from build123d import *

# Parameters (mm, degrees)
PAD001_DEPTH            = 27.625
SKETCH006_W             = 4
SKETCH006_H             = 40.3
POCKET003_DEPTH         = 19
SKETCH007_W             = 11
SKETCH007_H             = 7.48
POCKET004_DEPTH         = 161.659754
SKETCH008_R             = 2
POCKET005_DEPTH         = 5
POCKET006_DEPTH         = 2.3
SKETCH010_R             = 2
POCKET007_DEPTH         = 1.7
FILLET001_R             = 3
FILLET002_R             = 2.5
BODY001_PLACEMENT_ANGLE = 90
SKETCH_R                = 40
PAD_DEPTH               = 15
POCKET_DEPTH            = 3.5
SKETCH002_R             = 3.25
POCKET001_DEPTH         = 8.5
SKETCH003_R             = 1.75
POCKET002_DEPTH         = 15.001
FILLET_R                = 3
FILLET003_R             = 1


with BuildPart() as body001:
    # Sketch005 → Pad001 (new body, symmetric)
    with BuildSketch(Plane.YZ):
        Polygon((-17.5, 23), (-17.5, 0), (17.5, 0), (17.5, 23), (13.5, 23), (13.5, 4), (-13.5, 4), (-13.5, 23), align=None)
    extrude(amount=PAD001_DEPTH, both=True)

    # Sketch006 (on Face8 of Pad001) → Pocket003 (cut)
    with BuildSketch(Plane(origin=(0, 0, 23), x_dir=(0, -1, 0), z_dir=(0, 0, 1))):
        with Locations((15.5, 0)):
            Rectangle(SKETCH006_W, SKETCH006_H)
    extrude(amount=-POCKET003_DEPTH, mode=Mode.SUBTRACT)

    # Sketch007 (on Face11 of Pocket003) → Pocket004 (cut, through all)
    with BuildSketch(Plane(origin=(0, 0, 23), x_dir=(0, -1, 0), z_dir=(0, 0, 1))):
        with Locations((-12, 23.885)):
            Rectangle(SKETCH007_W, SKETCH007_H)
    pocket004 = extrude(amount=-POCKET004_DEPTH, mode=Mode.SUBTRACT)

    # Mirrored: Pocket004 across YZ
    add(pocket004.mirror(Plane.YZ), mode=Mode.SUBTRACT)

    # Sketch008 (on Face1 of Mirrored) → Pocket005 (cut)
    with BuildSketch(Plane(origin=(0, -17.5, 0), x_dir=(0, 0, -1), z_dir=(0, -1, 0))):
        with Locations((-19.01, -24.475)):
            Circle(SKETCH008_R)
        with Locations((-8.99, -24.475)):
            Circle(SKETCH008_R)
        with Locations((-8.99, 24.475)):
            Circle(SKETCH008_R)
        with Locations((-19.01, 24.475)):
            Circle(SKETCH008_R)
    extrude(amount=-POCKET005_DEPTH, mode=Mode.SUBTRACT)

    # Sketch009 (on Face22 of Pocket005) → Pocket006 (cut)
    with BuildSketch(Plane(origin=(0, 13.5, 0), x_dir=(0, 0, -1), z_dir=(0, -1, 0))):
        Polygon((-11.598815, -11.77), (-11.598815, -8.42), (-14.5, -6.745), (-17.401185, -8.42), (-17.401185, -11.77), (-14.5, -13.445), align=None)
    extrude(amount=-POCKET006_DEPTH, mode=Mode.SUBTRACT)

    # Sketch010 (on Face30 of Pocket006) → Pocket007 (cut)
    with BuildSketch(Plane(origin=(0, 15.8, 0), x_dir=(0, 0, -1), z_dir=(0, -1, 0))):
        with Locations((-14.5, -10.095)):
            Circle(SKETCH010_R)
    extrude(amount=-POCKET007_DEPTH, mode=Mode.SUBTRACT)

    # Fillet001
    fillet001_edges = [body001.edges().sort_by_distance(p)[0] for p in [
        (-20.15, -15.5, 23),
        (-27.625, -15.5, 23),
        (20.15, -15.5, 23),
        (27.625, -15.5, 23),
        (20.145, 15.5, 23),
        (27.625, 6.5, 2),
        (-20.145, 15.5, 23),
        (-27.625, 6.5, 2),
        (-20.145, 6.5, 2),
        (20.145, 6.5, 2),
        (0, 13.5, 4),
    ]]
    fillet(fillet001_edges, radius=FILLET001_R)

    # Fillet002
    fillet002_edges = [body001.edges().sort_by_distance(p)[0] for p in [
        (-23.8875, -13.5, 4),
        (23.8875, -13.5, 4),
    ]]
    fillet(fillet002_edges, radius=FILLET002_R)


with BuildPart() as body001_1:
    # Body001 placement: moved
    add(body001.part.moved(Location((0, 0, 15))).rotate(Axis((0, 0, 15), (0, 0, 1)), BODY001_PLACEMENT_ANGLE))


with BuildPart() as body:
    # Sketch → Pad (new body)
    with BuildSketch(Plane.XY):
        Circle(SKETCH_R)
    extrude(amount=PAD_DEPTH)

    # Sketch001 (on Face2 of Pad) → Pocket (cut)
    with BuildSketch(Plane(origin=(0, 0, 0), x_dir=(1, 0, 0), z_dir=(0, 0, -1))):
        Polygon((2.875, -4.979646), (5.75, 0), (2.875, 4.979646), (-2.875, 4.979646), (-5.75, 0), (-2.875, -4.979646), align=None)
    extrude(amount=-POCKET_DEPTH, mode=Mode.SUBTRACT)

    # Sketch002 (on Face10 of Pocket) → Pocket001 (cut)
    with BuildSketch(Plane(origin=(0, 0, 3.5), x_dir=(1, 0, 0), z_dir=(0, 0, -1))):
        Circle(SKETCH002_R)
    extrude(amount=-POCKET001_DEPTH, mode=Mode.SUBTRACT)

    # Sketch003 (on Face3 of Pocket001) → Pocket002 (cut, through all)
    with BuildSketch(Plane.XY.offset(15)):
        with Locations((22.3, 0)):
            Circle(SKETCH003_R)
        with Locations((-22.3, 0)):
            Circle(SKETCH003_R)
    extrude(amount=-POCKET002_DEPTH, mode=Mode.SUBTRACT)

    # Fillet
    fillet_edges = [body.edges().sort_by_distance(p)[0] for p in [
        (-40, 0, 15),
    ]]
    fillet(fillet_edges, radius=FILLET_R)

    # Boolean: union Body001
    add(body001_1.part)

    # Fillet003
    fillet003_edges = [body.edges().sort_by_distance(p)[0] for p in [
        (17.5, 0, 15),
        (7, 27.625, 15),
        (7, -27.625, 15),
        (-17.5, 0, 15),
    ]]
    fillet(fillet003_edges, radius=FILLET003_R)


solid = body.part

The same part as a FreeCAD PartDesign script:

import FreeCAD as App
import Part
import Sketcher
from FreeCAD import Vector
Q = App.Units.Quantity


def edges_at(feature, points):
    """Names of the edges that pass closest to the given points."""
    edges = feature.Shape.Edges
    near = lambda p: min(range(len(edges)), key=lambda i: edges[i].distToShape(Part.Vertex(*p))[0])
    return sorted({f"Edge{near(p) + 1}" for p in points})


def add_polygon(sketch, points):
    """Adds a closed chain of lines whose ends are joined by coincident constraints."""
    first, n = sketch.GeometryCount, len(points)
    for a, b in zip(points, points[1:] + points[:1]):
        sketch.addGeometry(Part.LineSegment(App.Vector(*a, 0), App.Vector(*b, 0)), False)
    for i in range(n):
        sketch.addConstraint(Sketcher.Constraint("Coincident", first + i, 2, first + (i + 1) % n, 1))

doc = App.newDocument("Part")
body = doc.addObject("PartDesign::Body", "Body")

# Sketch on YZ plane
sketch1 = body.newObject("Sketcher::SketchObject", "Sketch")
sketch1.AttachmentSupport = (doc.getObject("YZ_Plane"), [""])
sketch1.MapMode = "FlatFace"
add_polygon(sketch1, [(-17.5, 23), (-17.5, 0), (17.5, 0), (17.5, 23), (13.5, 23), (13.5, 4), (-13.5, 4), (-13.5, 23)])  # lines 0-7
sketch1.addConstraint([
    Sketcher.Constraint("Vertical", 0),
    Sketcher.Constraint("Horizontal", 1),
    Sketcher.Constraint("Vertical", 2),
    Sketcher.Constraint("Horizontal", 3),
    Sketcher.Constraint("Vertical", 4),
    Sketcher.Constraint("Horizontal", 5),
    Sketcher.Constraint("Vertical", 6),
    Sketcher.Constraint("Horizontal", 7),
    Sketcher.Constraint("Symmetric", 0, 2, 1, 2, -1, 1),
    Sketcher.Constraint("Symmetric", 3, 2, 6, 2, -2),
    Sketcher.Constraint("DistanceX", 1, 1, 1, 2, 35.0),
    Sketcher.Constraint("DistanceX", 3, 2, 3, 1, 4.0),
    Sketcher.Constraint("DistanceY", 0, 2, 0, 1, 23.0),
    Sketcher.Constraint("DistanceY", 4, 2, 4, 1, 19.0),
])
pad1 = body.newObject("PartDesign::Pad", "Pad")
pad1.Profile = sketch1
pad1.Length = 55.25
pad1.Midplane = True

# Sketch on XY plane
sketch2 = body.newObject("Sketcher::SketchObject", "Sketch001")
sketch2.AttachmentSupport = (doc.getObject("XY_Plane"), [""])
sketch2.MapMode = "FlatFace"
sketch2.AttachmentOffset = App.Placement(Vector(0, 0, 23), App.Rotation())
add_polygon(sketch2, [(20.1, -13.5), (-20.1, -13.5), (-20.1, -17.5), (20.1, -17.5)])  # lines 0-3
sketch2.addConstraint([
    Sketcher.Constraint("Horizontal", 0),
    Sketcher.Constraint("Vertical", 1),
    Sketcher.Constraint("Horizontal", 2),
    Sketcher.Constraint("Vertical", 3),
    Sketcher.Constraint("DistanceY", 1, 2, 1, 1, 4.0),
    Sketcher.Constraint("DistanceX", 0, 2, 0, 1, 40.3),
    Sketcher.Constraint("DistanceY", 0, 2, -1, 1, 13.5),
    Sketcher.Constraint("DistanceX", 0, 2, -1, 1, 20.15),
])
pocket1 = body.newObject("PartDesign::Pocket", "Pocket")
pocket1.Profile = sketch2
pocket1.Length = 19

# Sketch on XY plane
sketch3 = body.newObject("Sketcher::SketchObject", "Sketch002")
sketch3.AttachmentSupport = (doc.getObject("XY_Plane"), [""])
sketch3.MapMode = "FlatFace"
sketch3.AttachmentOffset = App.Placement(Vector(0, 0, 23), App.Rotation())
add_polygon(sketch3, [(28, 18), (20, 18), (20, 6), (28, 6)])  # lines 0-3
sketch3.addConstraint([
    Sketcher.Constraint("Horizontal", 0),
    Sketcher.Constraint("Vertical", 1),
    Sketcher.Constraint("Horizontal", 2),
    Sketcher.Constraint("Vertical", 3),
    Sketcher.Constraint("DistanceY", 1, 2, 1, 1, 11.0),
    Sketcher.Constraint("DistanceX", 0, 2, 0, 1, 7.48),
    Sketcher.Constraint("DistanceY", -1, 1, 0, 2, 17.5),
    Sketcher.Constraint("DistanceX", -1, 1, 0, 2, 20.145),
])
pocket2 = body.newObject("PartDesign::Pocket", "Pocket001")
pocket2.Profile = sketch3
pocket2.Type = "ThroughAll"
doc.recompute()

mirrored = body.newObject("PartDesign::Mirrored", "Mirrored")
mirrored.Originals = [pocket2]
mirrored.MirrorPlane = (doc.getObject("YZ_Plane"), [""])
body.Tip = mirrored

# Sketch on XZ plane
sketch4 = body.newObject("Sketcher::SketchObject", "Sketch003")
sketch4.AttachmentSupport = (doc.getObject("XZ_Plane"), [""])
sketch4.MapMode = "FlatFace"
sketch4.AttachmentOffset = App.Placement(Vector(0, 0, 17.5), App.Rotation())
sketch4.addGeometry([
    Part.Circle(Vector(-24.5, 19, 0), Vector(0, 0, 1), 2),
    Part.Circle(Vector(-24.5, 9, 0), Vector(0, 0, 1), 2),
    Part.Circle(Vector(24.5, 9, 0), Vector(0, 0, 1), 2),
    Part.Circle(Vector(24.5, 19, 0), Vector(0, 0, 1), 2),
], False)
sketch4.addConstraint([
    Sketcher.Constraint("Equal", 0, 1),
    Sketcher.Constraint("Equal", 1, 2),
    Sketcher.Constraint("Equal", 2, 3),
    Sketcher.Constraint("Symmetric", 1, 3, 2, 3, -2),
    Sketcher.Constraint("Symmetric", 0, 3, 3, 3, -2),
    Sketcher.Constraint("Vertical", 0, 3, 1, 3),
    Sketcher.Constraint("Diameter", 0, 4.0),
    Sketcher.Constraint("DistanceY", -1, 1, 0, 3, 19.01),
    Sketcher.Constraint("DistanceY", -1, 1, 1, 3, 8.99),
    Sketcher.Constraint("DistanceX", 1, 3, 2, 3, 48.95),
])
pocket3 = body.newObject("PartDesign::Pocket", "Pocket002")
pocket3.Profile = sketch4
pocket3.Length = 5

# Sketch on XZ plane
sketch5 = body.newObject("Sketcher::SketchObject", "Sketch004")
sketch5.AttachmentSupport = (doc.getObject("XZ_Plane"), [""])
sketch5.MapMode = "FlatFace"
sketch5.AttachmentOffset = App.Placement(Vector(0, 0, -13.5), App.Rotation())
add_polygon(sketch5, [(-11.8, 11.6), (-8.4, 11.6), (-6.7, 14.5), (-8.4, 17.4), (-11.8, 17.4), (-13.4, 14.5)])  # lines 0-5
sketch5.addConstraint([
    Sketcher.Constraint("Horizontal", 0),
    Sketcher.Constraint("Horizontal", 3),
    Sketcher.Constraint("Parallel", 1, 4),
    Sketcher.Constraint("Parallel", 2, 5),
    Sketcher.Constraint("Horizontal", 1, 2, 4, 2),
    Sketcher.Constraint("Vertical", 0, 2, 2, 2),
    Sketcher.Constraint("Vertical", 3, 2, 5, 2),
    Sketcher.Constraint("Angle", 1, Q("59.999999 deg")),
    Sketcher.Constraint("DistanceX", 0, 1, 0, 2, 3.35),
    Sketcher.Constraint("DistanceY", -1, 1, 1, 2, 14.5),
    Sketcher.Constraint("DistanceX", 4, 2, 1, 2, 6.7),
    Sketcher.Constraint("DistanceX", 0, 2, -1, 1, 8.42),
])
pocket4 = body.newObject("PartDesign::Pocket", "Pocket003")
pocket4.Profile = sketch5
pocket4.Length = 2.3

# Sketch on XZ plane
sketch6 = body.newObject("Sketcher::SketchObject", "Sketch005")
sketch6.AttachmentSupport = (doc.getObject("XZ_Plane"), [""])
sketch6.MapMode = "FlatFace"
sketch6.AttachmentOffset = App.Placement(Vector(0, 0, -15.8), App.Rotation())
sketch6.addGeometry(Part.Circle(Vector(-10.1, 14.5, 0), Vector(0, 0, 1), 2), False)
sketch6.addConstraint([
    Sketcher.Constraint("Diameter", 0, 4.0),
    Sketcher.Constraint("DistanceY", -1, 1, 0, 3, 14.5),
    Sketcher.Constraint("DistanceX", 0, 3, -1, 1, 10.095),
])
pocket5 = body.newObject("PartDesign::Pocket", "Pocket004")
pocket5.Profile = sketch6
pocket5.Length = 1.7
doc.recompute()

fillet = body.newObject("PartDesign::Fillet", "Fillet")
fillet.Base = (pocket5, edges_at(pocket5, [
    (-20.15, -15.5, 23),
    (-27.625, -15.5, 23),
    (20.15, -15.5, 23),
    (27.625, -15.5, 23),
    (20.145, 15.5, 23),
    (27.625, 6.5, 2),
    (-20.145, 15.5, 23),
    (-27.625, 6.5, 2),
    (-20.145, 6.5, 2),
    (20.145, 6.5, 2),
    (0, 13.5, 4),
]))
fillet.Radius = 3
doc.recompute()

fillet2 = body.newObject("PartDesign::Fillet", "Fillet001")
fillet2.Base = (fillet, edges_at(fillet, [(-23.887, -13.5, 4), (23.887, -13.5, 4)]))
fillet2.Radius = 2.5
body2 = doc.addObject("PartDesign::Body", "Body001")
doc.recompute()

body.Placement = App.Placement(Vector(0, 0, 15), App.Rotation(Vector(0, 0, 1), 90))
boolean = body2.newObject("PartDesign::Boolean", "Boolean")
boolean.Type = "Fuse"
boolean.addObjects([body])
body3 = doc.addObject("PartDesign::Body", "Body002")

# Sketch on XY plane
sketch7 = body3.newObject("Sketcher::SketchObject", "Sketch006")
sketch7.AttachmentSupport = (doc.getObject("XY_Plane002"), [""])
sketch7.MapMode = "FlatFace"
sketch7.addGeometry(Part.Circle(Vector(0, 0, 0), Vector(0, 0, 1), 40), False)
sketch7.addConstraint([
    Sketcher.Constraint("Coincident", 0, 3, -1, 1),
    Sketcher.Constraint("Diameter", 0, 80.0),
])
pad2 = body3.newObject("PartDesign::Pad", "Pad001")
pad2.Profile = sketch7
pad2.Length = 15

# Sketch on XY plane
sketch8 = body3.newObject("Sketcher::SketchObject", "Sketch007")
sketch8.AttachmentSupport = (doc.getObject("XY_Plane002"), [""])
sketch8.MapMode = "FlatFace"
add_polygon(sketch8, [(3, 5), (6, 0), (3, -5), (-3, -5), (-6, 0), (-3, 5)])  # lines 0-5
sketch8.addConstraint([
    Sketcher.Constraint("Horizontal", 2),
    Sketcher.Constraint("Horizontal", 5),
    Sketcher.Constraint("Symmetric", 0, 2, 3, 2, -1, 1),
    Sketcher.Constraint("Symmetric", 1, 2, 4, 2, -1, 1),
    Sketcher.Constraint("PointOnObject", 0, 2, -1),
    Sketcher.Constraint("Parallel", 0, 3),
    Sketcher.Constraint("Vertical", 2, 2, 4, 2),
    Sketcher.Constraint("Angle", 0, Q("-60 deg")),
    Sketcher.Constraint("DistanceX", 2, 2, 2, 1, 5.75),
    Sketcher.Constraint("DistanceX", 3, 2, 0, 2, 11.5),
])
pocket6 = body3.newObject("PartDesign::Pocket", "Pocket005")
pocket6.Profile = sketch8
pocket6.Length = 3.5
pocket6.Reversed = True

# Sketch on XY plane
sketch9 = body3.newObject("Sketcher::SketchObject", "Sketch008")
sketch9.AttachmentSupport = (doc.getObject("XY_Plane002"), [""])
sketch9.MapMode = "FlatFace"
sketch9.AttachmentOffset = App.Placement(Vector(0, 0, 3.5), App.Rotation())
sketch9.addGeometry(Part.Circle(Vector(0, 0, 0), Vector(0, 0, 1), 3.2), False)
sketch9.addConstraint([
    Sketcher.Constraint("Coincident", 0, 3, -1, 1),
    Sketcher.Constraint("Diameter", 0, 6.5),
])
pocket7 = body3.newObject("PartDesign::Pocket", "Pocket006")
pocket7.Profile = sketch9
pocket7.Length = 8.5
pocket7.Reversed = True

# Sketch on XY plane
sketch10 = body3.newObject("Sketcher::SketchObject", "Sketch009")
sketch10.AttachmentSupport = (doc.getObject("XY_Plane002"), [""])
sketch10.MapMode = "FlatFace"
sketch10.AttachmentOffset = App.Placement(Vector(0, 0, 15), App.Rotation())
sketch10.addGeometry([
    Part.Circle(Vector(22.3, 0, 0), Vector(0, 0, 1), 1.8),
    Part.Circle(Vector(-22.3, 0, 0), Vector(0, 0, 1), 1.8),
], False)
sketch10.addConstraint([
    Sketcher.Constraint("Equal", 0, 1),
    Sketcher.Constraint("Symmetric", 0, 3, 1, 3, -1, 1),
    Sketcher.Constraint("PointOnObject", 0, 3, -1),
    Sketcher.Constraint("Diameter", 0, 3.5),
    Sketcher.Constraint("DistanceX", -1, 1, 0, 3, 22.3),
])
pocket8 = body3.newObject("PartDesign::Pocket", "Pocket007")
pocket8.Profile = sketch10
pocket8.Type = "ThroughAll"
doc.recompute()

fillet3 = body3.newObject("PartDesign::Fillet", "Fillet002")
fillet3.Base = (pocket8, edges_at(pocket8, [(-40, 0, 15)]))
fillet3.Radius = 3
doc.recompute()

boolean2 = body3.newObject("PartDesign::Boolean", "Boolean001")
boolean2.Type = "Fuse"
boolean2.addObjects([body2])
doc.recompute()

fillet4 = body3.newObject("PartDesign::Fillet", "Fillet003")
fillet4.Base = (boolean2, edges_at(boolean2, [
    (17.5, 0, 15),
    (7, 27.625, 15),
    (7, -27.625, 15),
    (-17.5, 0, 15),
]))
fillet4.Radius = 1

doc.recompute()
